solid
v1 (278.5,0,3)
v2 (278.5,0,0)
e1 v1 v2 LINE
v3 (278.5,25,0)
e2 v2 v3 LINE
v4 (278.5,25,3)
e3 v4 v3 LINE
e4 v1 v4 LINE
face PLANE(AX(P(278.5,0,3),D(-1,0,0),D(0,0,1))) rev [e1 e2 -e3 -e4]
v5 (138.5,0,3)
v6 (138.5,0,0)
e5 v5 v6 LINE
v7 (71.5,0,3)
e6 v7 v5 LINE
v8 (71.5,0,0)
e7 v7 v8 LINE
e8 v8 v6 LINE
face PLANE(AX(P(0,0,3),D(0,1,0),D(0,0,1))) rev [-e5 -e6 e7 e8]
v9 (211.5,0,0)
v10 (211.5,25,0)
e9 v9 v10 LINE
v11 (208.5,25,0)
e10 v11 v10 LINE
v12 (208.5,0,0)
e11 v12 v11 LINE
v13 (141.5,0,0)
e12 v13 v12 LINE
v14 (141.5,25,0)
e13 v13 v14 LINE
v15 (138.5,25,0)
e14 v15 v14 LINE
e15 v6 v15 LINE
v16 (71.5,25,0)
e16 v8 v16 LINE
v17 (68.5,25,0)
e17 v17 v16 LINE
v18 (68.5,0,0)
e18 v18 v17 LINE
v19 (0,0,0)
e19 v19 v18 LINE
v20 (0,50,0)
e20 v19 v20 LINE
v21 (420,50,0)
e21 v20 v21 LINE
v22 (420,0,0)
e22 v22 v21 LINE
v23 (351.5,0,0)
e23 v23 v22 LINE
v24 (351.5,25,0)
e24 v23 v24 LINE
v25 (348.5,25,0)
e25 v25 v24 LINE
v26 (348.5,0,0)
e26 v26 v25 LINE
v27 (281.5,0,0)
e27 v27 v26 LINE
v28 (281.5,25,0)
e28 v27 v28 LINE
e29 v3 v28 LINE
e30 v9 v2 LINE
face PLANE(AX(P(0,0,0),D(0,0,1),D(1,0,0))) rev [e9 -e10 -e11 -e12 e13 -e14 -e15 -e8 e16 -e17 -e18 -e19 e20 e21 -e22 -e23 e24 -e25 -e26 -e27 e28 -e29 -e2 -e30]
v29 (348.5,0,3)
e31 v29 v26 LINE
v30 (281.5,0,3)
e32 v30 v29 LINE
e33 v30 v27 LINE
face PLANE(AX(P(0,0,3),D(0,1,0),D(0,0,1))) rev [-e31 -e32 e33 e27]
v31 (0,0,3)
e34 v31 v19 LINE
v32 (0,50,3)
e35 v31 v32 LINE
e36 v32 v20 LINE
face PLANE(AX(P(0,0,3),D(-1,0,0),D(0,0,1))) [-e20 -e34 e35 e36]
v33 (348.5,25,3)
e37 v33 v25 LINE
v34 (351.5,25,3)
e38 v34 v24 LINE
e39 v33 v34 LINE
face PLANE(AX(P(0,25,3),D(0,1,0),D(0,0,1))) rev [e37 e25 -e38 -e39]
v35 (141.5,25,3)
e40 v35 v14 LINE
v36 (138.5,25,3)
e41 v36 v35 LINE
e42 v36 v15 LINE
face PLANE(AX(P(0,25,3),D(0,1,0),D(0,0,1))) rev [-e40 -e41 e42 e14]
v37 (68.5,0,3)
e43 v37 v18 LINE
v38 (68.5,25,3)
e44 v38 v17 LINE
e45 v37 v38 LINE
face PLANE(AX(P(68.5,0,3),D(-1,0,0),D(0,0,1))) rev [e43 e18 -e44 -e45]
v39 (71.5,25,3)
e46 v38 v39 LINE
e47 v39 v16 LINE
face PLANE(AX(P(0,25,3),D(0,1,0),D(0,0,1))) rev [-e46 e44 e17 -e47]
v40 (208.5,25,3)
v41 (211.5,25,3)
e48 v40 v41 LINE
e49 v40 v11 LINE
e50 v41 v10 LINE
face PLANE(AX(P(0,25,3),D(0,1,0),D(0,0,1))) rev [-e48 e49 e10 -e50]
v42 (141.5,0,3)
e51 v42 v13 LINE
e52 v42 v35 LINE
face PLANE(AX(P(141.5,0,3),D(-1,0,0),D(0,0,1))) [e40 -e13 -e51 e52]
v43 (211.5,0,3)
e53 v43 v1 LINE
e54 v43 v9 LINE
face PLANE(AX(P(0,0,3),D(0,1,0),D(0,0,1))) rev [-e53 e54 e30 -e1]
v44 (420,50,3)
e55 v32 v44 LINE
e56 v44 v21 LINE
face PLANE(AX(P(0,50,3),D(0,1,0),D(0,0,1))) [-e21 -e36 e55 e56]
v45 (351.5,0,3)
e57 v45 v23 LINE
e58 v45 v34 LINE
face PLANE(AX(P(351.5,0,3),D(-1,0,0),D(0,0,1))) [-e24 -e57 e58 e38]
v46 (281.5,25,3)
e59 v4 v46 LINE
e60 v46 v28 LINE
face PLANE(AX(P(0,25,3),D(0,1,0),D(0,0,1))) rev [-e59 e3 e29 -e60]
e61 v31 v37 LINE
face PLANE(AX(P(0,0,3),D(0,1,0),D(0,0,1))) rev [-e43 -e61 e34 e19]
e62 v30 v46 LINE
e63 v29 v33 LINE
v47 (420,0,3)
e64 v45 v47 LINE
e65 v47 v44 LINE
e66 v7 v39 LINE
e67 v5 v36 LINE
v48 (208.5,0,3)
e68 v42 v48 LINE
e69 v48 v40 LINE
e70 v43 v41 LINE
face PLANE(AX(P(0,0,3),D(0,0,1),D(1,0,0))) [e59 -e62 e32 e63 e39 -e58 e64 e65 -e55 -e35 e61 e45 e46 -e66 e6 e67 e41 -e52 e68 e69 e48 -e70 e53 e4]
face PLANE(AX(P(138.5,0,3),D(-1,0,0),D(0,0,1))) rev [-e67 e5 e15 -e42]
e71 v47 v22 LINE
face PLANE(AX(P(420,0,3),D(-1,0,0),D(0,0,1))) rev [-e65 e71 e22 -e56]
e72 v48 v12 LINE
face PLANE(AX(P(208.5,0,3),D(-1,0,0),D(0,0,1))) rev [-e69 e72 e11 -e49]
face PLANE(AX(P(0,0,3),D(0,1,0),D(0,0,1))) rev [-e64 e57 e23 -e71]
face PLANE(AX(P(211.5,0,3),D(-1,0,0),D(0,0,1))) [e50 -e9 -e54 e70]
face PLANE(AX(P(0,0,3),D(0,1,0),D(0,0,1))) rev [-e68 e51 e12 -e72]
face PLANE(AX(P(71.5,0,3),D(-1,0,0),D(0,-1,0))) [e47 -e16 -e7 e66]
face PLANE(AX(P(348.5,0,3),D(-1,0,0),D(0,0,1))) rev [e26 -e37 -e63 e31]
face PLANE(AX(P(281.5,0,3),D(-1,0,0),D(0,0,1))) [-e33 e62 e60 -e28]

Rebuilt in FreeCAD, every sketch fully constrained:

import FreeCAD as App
import Part
import Sketcher

V = App.Vector
Q = App.Units.Quantity

doc = App.newDocument("Part")
params = doc.addObject("Spreadsheet::Sheet", "Params")
for row, (alias, value) in enumerate([
    ("sketch1_width", "3 mm"),
    ("sketch1_width2", "67 mm"),
    ("sketch1_width3", "420 mm"),
    ("sketch1_height", "50 mm"),
    ("sketch1_height2", "25 mm"),
    ("pad1_length", "3 mm"),
], start=1):
    params.set(f"A{row}", alias)
    params.set(f"B{row}", "=" + value)
    params.setAlias(f"B{row}", alias)

body = doc.addObject("PartDesign::Body", "Body")

sketch1 = body.newObject("Sketcher::SketchObject", "Sketch")
sketch1.AttachmentSupport = (doc.getObject("XY_Plane"), [""])
sketch1.MapMode = "FlatFace"
sketch1.addGeometry(Part.LineSegment(V(0, 50, 0), V(0, 0, 0)), False)
sketch1.addGeometry(Part.LineSegment(V(0, 0, 0), V(68.5, 0, 0)), False)
sketch1.addGeometry(Part.LineSegment(V(68.5, 0, 0), V(68.5, 25, 0)), False)
sketch1.addGeometry(Part.LineSegment(V(68.5, 25, 0), V(71.5, 25, 0)), False)
sketch1.addGeometry(Part.LineSegment(V(71.5, 25, 0), V(71.5, 0, 0)), False)
sketch1.addGeometry(Part.LineSegment(V(71.5, 0, 0), V(138.5, 0, 0)), False)
sketch1.addGeometry(Part.LineSegment(V(138.5, 0, 0), V(138.5, 25, 0)), False)
sketch1.addGeometry(Part.LineSegment(V(138.5, 25, 0), V(141.5, 25, 0)), False)
sketch1.addGeometry(Part.LineSegment(V(141.5, 25, 0), V(141.5, 0, 0)), False)
sketch1.addGeometry(Part.LineSegment(V(141.5, 0, 0), V(208.5, 0, 0)), False)
sketch1.addGeometry(Part.LineSegment(V(208.5, 0, 0), V(208.5, 25, 0)), False)
sketch1.addGeometry(Part.LineSegment(V(208.5, 25, 0), V(211.5, 25, 0)), False)
sketch1.addGeometry(Part.LineSegment(V(211.5, 25, 0), V(211.5, 0, 0)), False)
sketch1.addGeometry(Part.LineSegment(V(211.5, 0, 0), V(278.5, 0, 0)), False)
sketch1.addGeometry(Part.LineSegment(V(278.5, 0, 0), V(278.5, 25, 0)), False)
sketch1.addGeometry(Part.LineSegment(V(278.5, 25, 0), V(281.5, 25, 0)), False)
sketch1.addGeometry(Part.LineSegment(V(281.5, 25, 0), V(281.5, 0, 0)), False)
sketch1.addGeometry(Part.LineSegment(V(281.5, 0, 0), V(348.5, 0, 0)), False)
sketch1.addGeometry(Part.LineSegment(V(348.5, 0, 0), V(348.5, 25, 0)), False)
sketch1.addGeometry(Part.LineSegment(V(348.5, 25, 0), V(351.5, 25, 0)), False)
sketch1.addGeometry(Part.LineSegment(V(351.5, 25, 0), V(351.5, 0, 0)), False)
sketch1.addGeometry(Part.LineSegment(V(351.5, 0, 0), V(420, 0, 0)), False)
sketch1.addGeometry(Part.LineSegment(V(420, 0, 0), V(420, 50, 0)), False)
sketch1.addGeometry(Part.LineSegment(V(420, 50, 0), V(0, 50, 0)), False)
sketch1.addConstraint(Sketcher.Constraint("Coincident", 0, 2, 1, 1))
sketch1.addConstraint(Sketcher.Constraint("Coincident", 1, 2, 2, 1))
sketch1.addConstraint(Sketcher.Constraint("Coincident", 2, 2, 3, 1))
sketch1.addConstraint(Sketcher.Constraint("Coincident", 3, 2, 4, 1))
sketch1.addConstraint(Sketcher.Constraint("Coincident", 4, 2, 5, 1))
sketch1.addConstraint(Sketcher.Constraint("Coincident", 5, 2, 6, 1))
sketch1.addConstraint(Sketcher.Constraint("Coincident", 6, 2, 7, 1))
sketch1.addConstraint(Sketcher.Constraint("Coincident", 7, 2, 8, 1))
sketch1.addConstraint(Sketcher.Constraint("Coincident", 8, 2, 9, 1))
sketch1.addConstraint(Sketcher.Constraint("Coincident", 9, 2, 10, 1))
sketch1.addConstraint(Sketcher.Constraint("Coincident", 10, 2, 11, 1))
sketch1.addConstraint(Sketcher.Constraint("Coincident", 11, 2, 12, 1))
sketch1.addConstraint(Sketcher.Constraint("Coincident", 12, 2, 13, 1))
sketch1.addConstraint(Sketcher.Constraint("Coincident", 13, 2, 14, 1))
sketch1.addConstraint(Sketcher.Constraint("Coincident", 14, 2, 15, 1))
sketch1.addConstraint(Sketcher.Constraint("Coincident", 15, 2, 16, 1))
sketch1.addConstraint(Sketcher.Constraint("Coincident", 16, 2, 17, 1))
sketch1.addConstraint(Sketcher.Constraint("Coincident", 17, 2, 18, 1))
sketch1.addConstraint(Sketcher.Constraint("Coincident", 18, 2, 19, 1))
sketch1.addConstraint(Sketcher.Constraint("Coincident", 19, 2, 20, 1))
sketch1.addConstraint(Sketcher.Constraint("Coincident", 20, 2, 21, 1))
sketch1.addConstraint(Sketcher.Constraint("Coincident", 21, 2, 22, 1))
sketch1.addConstraint(Sketcher.Constraint("Coincident", 22, 2, 23, 1))
sketch1.addConstraint(Sketcher.Constraint("Coincident", 23, 2, 0, 1))
sketch1.addConstraint(Sketcher.Constraint("Vertical", 0))
sketch1.addConstraint(Sketcher.Constraint("Horizontal", 1))
sketch1.addConstraint(Sketcher.Constraint("Vertical", 2))
sketch1.addConstraint(Sketcher.Constraint("Horizontal", 3))
sketch1.addConstraint(Sketcher.Constraint("Vertical", 4))
sketch1.addConstraint(Sketcher.Constraint("Horizontal", 5))
sketch1.addConstraint(Sketcher.Constraint("Vertical", 6))
sketch1.addConstraint(Sketcher.Constraint("Horizontal", 7))
sketch1.addConstraint(Sketcher.Constraint("Vertical", 8))
sketch1.addConstraint(Sketcher.Constraint("Horizontal", 9))
sketch1.addConstraint(Sketcher.Constraint("Vertical", 10))
sketch1.addConstraint(Sketcher.Constraint("Horizontal", 11))
sketch1.addConstraint(Sketcher.Constraint("Vertical", 12))
sketch1.addConstraint(Sketcher.Constraint("Horizontal", 13))
sketch1.addConstraint(Sketcher.Constraint("Vertical", 14))
sketch1.addConstraint(Sketcher.Constraint("Horizontal", 15))
sketch1.addConstraint(Sketcher.Constraint("Vertical", 16))
sketch1.addConstraint(Sketcher.Constraint("Horizontal", 17))
sketch1.addConstraint(Sketcher.Constraint("Vertical", 18))
sketch1.addConstraint(Sketcher.Constraint("Horizontal", 19))
sketch1.addConstraint(Sketcher.Constraint("Vertical", 20))
sketch1.addConstraint(Sketcher.Constraint("Horizontal", 21))
sketch1.addConstraint(Sketcher.Constraint("Vertical", 22))
sketch1.addConstraint(Sketcher.Constraint("Horizontal", 23))
sketch1.addConstraint(Sketcher.Constraint("Coincident", 0, 2, -1, 1))
sketch1.addConstraint(Sketcher.Constraint("PointOnObject", 4, 2, -1))
sketch1.addConstraint(Sketcher.Constraint("PointOnObject", 8, 2, -1))
sketch1.addConstraint(Sketcher.Constraint("PointOnObject", 12, 2, -1))
sketch1.addConstraint(Sketcher.Constraint("PointOnObject", 16, 2, -1))
sketch1.addConstraint(Sketcher.Constraint("PointOnObject", 20, 2, -1))
sketch1.addConstraint(Sketcher.Constraint("Horizontal", 3, 2, 6, 2))
sketch1.addConstraint(Sketcher.Constraint("Horizontal", 7, 2, 10, 2))
sketch1.addConstraint(Sketcher.Constraint("Horizontal", 11, 2, 14, 2))
sketch1.addConstraint(Sketcher.Constraint("Horizontal", 15, 2, 18, 2))
sketch1.addConstraint(Sketcher.Constraint("Equal", 3, 7))
sketch1.addConstraint(Sketcher.Constraint("Equal", 5, 9))
sketch1.addConstraint(Sketcher.Constraint("Equal", 7, 11))
sketch1.addConstraint(Sketcher.Constraint("Equal", 9, 13))
sketch1.addConstraint(Sketcher.Constraint("Equal", 11, 15))
sketch1.addConstraint(Sketcher.Constraint("Equal", 13, 17))
sketch1.addConstraint(Sketcher.Constraint("Equal", 15, 19))
sketch1.addConstraint(Sketcher.Constraint("Equal", 1, 21))
sketch1.addConstraint(Sketcher.Constraint("DistanceX", 3, 1, 3, 2, Q("3 mm")))
sketch1.addConstraint(Sketcher.Constraint("DistanceX", 5, 1, 5, 2, Q("67 mm")))
sketch1.addConstraint(Sketcher.Constraint("DistanceX", 23, 2, 23, 1, Q("420 mm")))
sketch1.addConstraint(Sketcher.Constraint("DistanceY", 0, 2, 0, 1, Q("50 mm")))
sketch1.addConstraint(Sketcher.Constraint("DistanceY", 2, 1, 2, 2, Q("25 mm")))
sketch1.setExpression("Constraints[66]", "Params.sketch1_width")
sketch1.setExpression("Constraints[67]", "Params.sketch1_width2")
sketch1.setExpression("Constraints[68]", "Params.sketch1_width3")
sketch1.setExpression("Constraints[69]", "Params.sketch1_height")
sketch1.setExpression("Constraints[70]", "Params.sketch1_height2")
pad1 = body.newObject("PartDesign::Pad", "Pad")
pad1.Profile = sketch1
pad1.setExpression("Length", "Params.pad1_length")

doc.recompute()
